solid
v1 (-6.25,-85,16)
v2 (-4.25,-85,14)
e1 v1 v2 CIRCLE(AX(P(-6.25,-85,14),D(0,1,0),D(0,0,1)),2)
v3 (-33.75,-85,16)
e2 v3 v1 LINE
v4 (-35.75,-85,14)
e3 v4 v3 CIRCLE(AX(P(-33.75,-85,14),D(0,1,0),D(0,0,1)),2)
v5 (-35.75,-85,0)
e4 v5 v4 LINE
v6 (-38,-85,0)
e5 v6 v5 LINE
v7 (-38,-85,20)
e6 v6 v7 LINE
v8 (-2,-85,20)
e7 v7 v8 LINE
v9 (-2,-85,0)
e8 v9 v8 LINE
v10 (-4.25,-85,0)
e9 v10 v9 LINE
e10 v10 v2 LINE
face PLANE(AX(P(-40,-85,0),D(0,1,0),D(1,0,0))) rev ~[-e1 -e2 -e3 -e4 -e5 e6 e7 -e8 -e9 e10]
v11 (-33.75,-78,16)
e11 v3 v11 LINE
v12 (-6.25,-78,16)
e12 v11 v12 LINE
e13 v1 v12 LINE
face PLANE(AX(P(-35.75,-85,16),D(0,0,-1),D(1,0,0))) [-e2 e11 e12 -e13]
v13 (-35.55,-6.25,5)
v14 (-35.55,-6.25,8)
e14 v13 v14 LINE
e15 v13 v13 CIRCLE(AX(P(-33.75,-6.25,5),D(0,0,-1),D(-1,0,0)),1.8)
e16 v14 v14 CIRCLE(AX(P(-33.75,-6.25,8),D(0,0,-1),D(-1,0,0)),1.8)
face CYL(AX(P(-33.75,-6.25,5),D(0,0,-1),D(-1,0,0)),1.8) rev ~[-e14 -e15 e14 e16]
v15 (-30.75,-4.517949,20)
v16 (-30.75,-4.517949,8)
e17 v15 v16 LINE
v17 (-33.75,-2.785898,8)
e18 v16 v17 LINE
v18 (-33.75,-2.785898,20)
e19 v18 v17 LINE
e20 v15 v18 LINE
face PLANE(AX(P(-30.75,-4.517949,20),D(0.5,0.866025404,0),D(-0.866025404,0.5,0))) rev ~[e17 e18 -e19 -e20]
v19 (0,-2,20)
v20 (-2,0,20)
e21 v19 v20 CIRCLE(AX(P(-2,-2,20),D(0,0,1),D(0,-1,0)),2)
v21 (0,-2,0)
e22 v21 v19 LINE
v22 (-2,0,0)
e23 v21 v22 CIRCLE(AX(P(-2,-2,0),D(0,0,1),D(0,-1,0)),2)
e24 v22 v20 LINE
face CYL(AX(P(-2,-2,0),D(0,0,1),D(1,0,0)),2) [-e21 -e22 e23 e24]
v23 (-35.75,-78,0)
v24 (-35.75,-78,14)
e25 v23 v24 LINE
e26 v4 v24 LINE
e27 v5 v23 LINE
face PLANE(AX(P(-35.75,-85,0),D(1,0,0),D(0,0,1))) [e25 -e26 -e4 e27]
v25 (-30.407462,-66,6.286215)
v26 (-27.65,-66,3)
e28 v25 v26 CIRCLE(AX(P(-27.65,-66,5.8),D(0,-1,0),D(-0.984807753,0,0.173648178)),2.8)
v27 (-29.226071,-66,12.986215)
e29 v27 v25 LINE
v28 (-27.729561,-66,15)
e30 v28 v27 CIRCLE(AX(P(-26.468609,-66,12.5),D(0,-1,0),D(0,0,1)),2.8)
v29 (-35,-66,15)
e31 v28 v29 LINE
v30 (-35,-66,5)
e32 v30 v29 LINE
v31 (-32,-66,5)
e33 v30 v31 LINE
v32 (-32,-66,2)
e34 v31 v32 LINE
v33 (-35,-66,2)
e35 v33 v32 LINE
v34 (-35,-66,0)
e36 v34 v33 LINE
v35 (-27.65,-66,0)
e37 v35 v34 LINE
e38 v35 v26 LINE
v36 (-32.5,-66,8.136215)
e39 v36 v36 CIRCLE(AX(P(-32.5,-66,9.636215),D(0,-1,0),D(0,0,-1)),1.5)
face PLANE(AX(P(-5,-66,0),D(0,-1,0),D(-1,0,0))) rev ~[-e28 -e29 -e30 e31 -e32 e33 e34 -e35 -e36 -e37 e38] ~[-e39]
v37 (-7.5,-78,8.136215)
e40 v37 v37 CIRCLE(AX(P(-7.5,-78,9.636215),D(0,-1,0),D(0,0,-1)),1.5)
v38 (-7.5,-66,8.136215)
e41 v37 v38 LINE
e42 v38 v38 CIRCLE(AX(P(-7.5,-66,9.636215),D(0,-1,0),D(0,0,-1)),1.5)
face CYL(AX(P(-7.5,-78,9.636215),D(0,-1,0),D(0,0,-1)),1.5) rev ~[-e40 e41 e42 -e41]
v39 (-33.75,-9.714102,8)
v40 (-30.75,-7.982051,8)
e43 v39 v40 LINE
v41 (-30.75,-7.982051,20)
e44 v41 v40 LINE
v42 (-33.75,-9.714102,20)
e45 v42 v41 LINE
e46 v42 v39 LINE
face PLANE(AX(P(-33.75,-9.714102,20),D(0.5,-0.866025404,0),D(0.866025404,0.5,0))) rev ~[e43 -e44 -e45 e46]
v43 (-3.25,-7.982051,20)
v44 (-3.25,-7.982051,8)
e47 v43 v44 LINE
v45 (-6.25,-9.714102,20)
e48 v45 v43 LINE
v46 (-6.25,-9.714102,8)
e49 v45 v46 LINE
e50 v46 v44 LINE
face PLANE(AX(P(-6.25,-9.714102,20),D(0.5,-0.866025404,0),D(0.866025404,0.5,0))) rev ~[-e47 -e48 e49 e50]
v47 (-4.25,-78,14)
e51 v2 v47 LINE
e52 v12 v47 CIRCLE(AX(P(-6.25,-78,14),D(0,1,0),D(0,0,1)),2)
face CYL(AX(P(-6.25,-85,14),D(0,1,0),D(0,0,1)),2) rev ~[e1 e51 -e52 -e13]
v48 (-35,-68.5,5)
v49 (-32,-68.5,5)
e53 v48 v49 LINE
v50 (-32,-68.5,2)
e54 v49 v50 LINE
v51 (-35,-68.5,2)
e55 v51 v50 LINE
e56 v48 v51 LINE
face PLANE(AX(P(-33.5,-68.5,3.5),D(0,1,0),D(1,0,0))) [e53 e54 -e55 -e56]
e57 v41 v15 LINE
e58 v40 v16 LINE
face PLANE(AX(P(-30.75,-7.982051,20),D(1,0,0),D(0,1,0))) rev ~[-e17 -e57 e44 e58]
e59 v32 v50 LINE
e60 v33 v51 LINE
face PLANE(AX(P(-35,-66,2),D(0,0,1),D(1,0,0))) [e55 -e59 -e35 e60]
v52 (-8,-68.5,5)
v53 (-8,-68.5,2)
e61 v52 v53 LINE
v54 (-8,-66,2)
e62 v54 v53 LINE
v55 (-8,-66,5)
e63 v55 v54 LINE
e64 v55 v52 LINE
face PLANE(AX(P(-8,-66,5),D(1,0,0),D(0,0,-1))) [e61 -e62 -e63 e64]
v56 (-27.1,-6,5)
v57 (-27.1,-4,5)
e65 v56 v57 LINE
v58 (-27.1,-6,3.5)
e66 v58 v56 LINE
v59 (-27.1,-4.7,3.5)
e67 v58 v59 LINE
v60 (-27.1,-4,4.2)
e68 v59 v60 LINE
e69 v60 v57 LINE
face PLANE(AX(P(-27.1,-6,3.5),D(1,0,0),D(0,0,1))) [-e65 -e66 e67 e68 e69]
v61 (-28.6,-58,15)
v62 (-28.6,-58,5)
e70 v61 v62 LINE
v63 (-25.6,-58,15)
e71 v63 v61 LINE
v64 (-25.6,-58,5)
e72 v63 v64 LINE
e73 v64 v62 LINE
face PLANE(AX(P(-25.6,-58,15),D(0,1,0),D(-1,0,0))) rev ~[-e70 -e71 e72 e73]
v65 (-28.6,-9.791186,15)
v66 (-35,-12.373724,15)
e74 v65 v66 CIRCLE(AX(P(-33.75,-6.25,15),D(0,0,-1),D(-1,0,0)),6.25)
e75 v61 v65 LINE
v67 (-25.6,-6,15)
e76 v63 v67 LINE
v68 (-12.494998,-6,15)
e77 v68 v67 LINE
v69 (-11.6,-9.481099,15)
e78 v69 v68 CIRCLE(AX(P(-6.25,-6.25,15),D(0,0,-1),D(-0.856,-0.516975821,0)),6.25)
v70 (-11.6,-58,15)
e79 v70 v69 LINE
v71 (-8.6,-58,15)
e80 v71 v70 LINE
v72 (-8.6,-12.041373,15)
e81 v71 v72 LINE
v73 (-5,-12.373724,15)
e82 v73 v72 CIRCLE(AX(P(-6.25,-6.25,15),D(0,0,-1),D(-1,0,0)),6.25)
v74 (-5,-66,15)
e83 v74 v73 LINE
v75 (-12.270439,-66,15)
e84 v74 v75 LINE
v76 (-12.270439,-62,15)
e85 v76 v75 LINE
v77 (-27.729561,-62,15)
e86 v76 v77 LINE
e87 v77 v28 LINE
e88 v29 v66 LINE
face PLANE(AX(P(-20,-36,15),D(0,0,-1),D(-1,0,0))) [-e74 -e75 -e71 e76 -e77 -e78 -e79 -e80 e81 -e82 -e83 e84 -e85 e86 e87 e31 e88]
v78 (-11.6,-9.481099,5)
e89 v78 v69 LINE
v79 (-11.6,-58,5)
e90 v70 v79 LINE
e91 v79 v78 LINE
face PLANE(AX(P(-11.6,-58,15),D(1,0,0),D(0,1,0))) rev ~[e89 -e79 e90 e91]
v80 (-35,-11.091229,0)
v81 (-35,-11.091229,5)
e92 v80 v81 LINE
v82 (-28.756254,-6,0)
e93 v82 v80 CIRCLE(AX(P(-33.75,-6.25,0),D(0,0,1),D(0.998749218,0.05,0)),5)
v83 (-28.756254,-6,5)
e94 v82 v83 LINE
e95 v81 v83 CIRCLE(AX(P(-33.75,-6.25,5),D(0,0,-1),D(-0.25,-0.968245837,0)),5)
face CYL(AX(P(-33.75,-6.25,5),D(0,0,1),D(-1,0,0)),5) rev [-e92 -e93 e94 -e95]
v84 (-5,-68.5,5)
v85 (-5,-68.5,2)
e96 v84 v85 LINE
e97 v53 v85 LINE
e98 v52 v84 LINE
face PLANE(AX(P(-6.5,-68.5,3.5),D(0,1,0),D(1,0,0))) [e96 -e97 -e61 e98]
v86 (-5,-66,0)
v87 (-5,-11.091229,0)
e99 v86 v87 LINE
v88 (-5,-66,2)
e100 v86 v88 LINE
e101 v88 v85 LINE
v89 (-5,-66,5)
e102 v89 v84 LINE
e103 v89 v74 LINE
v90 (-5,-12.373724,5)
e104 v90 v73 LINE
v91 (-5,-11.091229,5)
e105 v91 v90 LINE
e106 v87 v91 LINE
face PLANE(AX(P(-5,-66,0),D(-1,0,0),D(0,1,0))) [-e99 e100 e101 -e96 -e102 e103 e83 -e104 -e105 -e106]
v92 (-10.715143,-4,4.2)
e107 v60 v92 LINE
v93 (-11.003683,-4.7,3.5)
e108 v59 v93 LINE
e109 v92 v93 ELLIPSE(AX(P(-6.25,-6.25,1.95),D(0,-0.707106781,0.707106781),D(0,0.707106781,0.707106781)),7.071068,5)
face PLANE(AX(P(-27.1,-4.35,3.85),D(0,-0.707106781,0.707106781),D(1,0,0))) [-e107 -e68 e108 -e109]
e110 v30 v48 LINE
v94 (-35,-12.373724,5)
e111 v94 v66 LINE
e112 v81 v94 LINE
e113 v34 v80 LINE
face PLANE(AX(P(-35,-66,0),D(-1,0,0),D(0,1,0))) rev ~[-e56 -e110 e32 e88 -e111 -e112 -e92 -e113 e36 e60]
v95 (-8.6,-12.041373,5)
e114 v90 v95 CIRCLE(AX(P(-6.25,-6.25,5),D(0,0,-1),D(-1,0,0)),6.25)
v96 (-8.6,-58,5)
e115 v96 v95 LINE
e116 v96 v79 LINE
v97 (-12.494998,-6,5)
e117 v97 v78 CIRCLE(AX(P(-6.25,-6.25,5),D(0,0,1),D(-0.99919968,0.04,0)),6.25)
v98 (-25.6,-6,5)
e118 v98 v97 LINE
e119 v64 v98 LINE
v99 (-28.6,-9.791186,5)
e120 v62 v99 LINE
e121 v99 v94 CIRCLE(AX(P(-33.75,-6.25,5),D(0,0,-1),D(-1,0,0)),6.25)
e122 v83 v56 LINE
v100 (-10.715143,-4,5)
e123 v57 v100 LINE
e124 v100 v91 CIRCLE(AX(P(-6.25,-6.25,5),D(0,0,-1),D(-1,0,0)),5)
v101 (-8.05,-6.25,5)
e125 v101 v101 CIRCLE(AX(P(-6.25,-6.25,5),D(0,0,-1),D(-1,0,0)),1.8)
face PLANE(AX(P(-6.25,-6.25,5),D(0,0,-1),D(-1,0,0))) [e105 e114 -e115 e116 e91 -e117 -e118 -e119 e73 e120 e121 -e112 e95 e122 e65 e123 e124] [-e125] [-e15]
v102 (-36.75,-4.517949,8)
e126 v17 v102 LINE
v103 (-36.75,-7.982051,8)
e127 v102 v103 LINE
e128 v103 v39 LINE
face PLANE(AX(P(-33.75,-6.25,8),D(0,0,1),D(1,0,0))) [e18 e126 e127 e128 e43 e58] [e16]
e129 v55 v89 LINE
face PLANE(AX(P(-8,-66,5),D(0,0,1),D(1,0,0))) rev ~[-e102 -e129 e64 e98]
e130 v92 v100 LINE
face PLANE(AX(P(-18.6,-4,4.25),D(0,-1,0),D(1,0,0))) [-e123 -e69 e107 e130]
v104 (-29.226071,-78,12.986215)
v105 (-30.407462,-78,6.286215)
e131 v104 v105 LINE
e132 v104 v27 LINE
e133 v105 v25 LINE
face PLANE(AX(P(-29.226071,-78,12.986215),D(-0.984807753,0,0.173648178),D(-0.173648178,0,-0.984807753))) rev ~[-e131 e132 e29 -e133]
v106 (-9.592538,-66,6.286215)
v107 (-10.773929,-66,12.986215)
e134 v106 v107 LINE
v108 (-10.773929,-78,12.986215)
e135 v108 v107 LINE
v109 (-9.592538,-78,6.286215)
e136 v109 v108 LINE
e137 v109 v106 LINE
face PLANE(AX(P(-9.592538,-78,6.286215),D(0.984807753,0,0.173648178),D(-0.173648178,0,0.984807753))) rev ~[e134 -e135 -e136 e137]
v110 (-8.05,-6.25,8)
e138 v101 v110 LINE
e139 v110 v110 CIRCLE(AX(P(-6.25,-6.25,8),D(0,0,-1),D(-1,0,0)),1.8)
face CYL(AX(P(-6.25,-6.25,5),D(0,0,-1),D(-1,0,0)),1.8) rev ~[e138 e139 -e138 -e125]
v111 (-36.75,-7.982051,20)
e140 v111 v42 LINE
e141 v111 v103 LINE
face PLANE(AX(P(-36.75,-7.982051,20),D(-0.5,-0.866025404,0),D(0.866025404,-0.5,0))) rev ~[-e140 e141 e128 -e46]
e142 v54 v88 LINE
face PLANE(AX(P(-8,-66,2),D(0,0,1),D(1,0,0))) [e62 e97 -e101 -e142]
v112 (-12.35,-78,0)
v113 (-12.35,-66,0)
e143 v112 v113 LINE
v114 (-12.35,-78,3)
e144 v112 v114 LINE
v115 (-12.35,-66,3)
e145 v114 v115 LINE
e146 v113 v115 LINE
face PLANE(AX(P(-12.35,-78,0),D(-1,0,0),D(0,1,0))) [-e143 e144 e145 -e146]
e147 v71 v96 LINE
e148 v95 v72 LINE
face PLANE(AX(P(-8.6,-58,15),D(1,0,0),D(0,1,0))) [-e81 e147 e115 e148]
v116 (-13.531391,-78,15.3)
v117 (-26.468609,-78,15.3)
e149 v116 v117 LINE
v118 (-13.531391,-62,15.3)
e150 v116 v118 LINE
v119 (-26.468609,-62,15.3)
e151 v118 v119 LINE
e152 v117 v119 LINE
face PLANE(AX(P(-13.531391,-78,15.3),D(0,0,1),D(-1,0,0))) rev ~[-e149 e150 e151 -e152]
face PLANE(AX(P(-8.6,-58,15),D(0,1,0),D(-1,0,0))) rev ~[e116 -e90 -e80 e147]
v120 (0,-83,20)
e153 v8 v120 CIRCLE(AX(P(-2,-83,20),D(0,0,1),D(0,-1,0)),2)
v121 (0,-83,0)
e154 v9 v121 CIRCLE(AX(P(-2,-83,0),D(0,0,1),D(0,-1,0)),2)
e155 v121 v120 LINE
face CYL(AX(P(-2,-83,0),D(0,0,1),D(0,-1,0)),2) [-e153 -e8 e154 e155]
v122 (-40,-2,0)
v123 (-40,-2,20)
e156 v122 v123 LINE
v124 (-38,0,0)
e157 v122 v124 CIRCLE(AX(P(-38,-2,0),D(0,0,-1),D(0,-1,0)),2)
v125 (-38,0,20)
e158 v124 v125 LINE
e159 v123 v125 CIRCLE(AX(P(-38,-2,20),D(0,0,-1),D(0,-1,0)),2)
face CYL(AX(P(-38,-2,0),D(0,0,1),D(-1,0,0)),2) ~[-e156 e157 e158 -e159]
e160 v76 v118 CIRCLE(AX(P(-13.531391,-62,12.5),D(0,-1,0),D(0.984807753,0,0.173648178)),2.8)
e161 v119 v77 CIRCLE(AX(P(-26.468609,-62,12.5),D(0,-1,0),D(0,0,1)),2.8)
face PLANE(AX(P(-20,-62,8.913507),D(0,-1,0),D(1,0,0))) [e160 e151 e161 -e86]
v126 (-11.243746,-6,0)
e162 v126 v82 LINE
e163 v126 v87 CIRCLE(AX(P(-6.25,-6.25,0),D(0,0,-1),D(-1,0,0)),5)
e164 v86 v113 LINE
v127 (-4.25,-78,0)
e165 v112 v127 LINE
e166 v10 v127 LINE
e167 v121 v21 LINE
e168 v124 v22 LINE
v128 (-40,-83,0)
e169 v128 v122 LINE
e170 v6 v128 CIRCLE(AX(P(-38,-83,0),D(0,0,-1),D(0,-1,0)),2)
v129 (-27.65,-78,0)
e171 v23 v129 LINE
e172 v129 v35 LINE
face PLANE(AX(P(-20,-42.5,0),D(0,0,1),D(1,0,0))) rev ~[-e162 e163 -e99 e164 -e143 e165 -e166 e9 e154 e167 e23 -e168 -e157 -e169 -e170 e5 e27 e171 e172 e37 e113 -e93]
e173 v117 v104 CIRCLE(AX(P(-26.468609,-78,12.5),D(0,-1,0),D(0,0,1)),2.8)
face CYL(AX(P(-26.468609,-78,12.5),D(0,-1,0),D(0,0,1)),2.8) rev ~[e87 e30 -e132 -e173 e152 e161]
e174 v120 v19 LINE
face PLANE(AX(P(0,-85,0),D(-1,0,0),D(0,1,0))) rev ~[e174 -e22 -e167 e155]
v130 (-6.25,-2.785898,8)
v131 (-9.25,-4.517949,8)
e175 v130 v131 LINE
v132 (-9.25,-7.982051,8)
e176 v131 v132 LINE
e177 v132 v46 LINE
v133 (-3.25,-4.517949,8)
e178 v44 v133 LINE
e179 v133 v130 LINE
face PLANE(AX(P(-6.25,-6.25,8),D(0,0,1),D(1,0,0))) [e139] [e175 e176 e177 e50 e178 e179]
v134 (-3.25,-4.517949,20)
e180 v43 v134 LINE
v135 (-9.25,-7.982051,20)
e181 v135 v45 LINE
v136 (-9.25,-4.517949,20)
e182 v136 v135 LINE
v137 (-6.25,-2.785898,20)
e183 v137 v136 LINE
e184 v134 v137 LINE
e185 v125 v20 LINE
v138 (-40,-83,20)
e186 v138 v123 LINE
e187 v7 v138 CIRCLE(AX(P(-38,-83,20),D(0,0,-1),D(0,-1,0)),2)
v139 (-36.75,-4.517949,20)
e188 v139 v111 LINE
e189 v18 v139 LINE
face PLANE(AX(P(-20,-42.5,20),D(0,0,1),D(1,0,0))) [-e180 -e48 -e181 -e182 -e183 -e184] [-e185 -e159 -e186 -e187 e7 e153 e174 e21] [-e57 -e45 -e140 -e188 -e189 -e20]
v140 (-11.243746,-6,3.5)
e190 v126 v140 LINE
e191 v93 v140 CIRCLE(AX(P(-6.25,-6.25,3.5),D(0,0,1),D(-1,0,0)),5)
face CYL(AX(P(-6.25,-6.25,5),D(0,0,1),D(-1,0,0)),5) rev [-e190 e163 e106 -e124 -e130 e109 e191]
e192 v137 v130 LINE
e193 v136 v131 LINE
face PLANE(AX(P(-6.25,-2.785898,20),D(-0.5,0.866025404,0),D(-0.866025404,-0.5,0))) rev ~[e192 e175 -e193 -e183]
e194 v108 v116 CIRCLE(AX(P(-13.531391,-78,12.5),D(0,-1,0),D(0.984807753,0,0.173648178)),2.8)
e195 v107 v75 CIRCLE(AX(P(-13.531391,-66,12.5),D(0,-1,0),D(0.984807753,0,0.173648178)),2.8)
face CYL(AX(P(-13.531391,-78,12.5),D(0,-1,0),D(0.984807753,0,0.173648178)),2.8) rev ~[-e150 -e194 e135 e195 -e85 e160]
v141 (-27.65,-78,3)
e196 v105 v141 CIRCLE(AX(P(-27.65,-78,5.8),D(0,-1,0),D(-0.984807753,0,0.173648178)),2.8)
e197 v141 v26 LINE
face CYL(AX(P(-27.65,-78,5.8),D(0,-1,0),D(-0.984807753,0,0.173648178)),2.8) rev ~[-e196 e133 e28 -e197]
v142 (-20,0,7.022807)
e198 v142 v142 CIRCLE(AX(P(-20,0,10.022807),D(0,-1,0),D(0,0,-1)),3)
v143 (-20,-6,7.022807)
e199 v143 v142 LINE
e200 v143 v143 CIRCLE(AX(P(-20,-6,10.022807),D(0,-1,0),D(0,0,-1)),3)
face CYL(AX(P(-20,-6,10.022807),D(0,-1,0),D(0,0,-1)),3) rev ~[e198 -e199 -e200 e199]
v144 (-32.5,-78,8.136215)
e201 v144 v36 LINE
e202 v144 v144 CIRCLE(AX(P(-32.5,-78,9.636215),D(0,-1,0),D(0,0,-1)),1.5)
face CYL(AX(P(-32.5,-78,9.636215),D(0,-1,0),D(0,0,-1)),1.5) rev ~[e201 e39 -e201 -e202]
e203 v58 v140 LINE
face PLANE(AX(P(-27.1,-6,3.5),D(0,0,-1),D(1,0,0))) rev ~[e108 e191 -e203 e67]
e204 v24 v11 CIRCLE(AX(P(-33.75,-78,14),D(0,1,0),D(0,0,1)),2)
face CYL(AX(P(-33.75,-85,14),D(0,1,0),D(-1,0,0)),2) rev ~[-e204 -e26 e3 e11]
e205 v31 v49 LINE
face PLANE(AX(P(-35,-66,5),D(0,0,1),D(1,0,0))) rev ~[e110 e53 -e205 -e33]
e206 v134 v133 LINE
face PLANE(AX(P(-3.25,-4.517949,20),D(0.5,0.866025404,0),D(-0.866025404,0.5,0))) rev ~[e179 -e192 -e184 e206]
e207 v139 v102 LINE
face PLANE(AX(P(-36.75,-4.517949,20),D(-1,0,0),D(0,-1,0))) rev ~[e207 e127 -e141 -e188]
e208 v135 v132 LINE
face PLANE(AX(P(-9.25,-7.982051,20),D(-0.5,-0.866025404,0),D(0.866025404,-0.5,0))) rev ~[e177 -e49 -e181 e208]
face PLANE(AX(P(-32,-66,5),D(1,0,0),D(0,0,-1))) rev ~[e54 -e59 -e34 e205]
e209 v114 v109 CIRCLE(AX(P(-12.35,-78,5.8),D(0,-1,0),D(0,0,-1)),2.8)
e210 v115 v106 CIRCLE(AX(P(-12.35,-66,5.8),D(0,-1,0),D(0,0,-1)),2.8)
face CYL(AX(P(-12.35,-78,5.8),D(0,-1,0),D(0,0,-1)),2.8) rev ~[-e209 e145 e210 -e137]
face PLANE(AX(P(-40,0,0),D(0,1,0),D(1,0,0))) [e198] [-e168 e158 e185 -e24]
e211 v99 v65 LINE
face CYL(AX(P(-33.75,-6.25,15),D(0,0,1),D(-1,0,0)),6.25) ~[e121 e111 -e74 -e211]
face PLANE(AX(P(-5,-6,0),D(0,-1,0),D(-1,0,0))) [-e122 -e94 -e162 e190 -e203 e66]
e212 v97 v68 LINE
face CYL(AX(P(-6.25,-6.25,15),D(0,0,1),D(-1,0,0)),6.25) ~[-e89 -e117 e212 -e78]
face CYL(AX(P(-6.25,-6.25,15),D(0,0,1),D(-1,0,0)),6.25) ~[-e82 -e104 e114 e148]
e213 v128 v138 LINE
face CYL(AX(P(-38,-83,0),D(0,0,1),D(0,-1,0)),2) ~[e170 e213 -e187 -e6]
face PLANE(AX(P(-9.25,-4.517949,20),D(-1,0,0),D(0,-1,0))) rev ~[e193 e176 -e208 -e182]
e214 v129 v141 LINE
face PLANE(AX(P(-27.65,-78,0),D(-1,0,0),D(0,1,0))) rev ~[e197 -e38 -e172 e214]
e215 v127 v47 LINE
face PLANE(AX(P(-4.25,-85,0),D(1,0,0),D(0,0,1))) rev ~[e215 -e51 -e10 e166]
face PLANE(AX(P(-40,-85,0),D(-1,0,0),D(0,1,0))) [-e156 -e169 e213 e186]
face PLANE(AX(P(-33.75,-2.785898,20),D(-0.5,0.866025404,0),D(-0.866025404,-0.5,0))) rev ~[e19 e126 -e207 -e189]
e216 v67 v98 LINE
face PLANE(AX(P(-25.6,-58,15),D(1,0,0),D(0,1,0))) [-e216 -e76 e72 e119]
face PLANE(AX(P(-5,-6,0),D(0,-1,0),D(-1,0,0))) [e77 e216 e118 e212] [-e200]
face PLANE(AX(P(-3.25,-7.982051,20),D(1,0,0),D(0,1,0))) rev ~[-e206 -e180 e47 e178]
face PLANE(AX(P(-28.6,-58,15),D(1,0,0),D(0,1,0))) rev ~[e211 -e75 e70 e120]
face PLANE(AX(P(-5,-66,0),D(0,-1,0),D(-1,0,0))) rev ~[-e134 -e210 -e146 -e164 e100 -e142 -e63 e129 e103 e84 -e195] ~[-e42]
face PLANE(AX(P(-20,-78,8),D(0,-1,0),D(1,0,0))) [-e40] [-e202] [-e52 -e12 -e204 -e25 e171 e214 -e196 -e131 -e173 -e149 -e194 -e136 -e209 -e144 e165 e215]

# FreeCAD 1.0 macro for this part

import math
import FreeCAD as App
import Part
import Sketcher
Q = App.Units.Quantity


def edges_at(feature, points):
    """Names of the edges that pass closest to the given points."""
    edges = feature.Shape.Edges
    near = lambda p: min(range(len(edges)), key=lambda i: edges[i].distToShape(Part.Vertex(*p))[0])
    return sorted({f"Edge{near(p) + 1}" for p in points})

doc = App.newDocument("Part")
body = doc.addObject("PartDesign::Body", "Body")

# Sketch on XY plane
sketch1 = body.newObject("Sketcher::SketchObject", "Sketch")
sketch1.AttachmentSupport = (doc.getObject("XY_Plane"), [""])
sketch1.MapMode = "FlatFace"
sketch1.addGeometry(Part.LineSegment(App.Vector(-40, 0, 0), App.Vector(-40, -85, 0)), False)
sketch1.addGeometry(Part.LineSegment(App.Vector(-40, -85, 0), App.Vector(0, -85, 0)), False)
sketch1.addGeometry(Part.LineSegment(App.Vector(0, -85, 0), App.Vector(0, 0, 0)), False)
sketch1.addGeometry(Part.LineSegment(App.Vector(0, 0, 0), App.Vector(-40, 0, 0)), False)
sketch1.addConstraint(Sketcher.Constraint("Coincident", 0, 2, 1, 1))
sketch1.addConstraint(Sketcher.Constraint("Coincident", 1, 2, 2, 1))
sketch1.addConstraint(Sketcher.Constraint("Coincident", 2, 2, 3, 1))
sketch1.addConstraint(Sketcher.Constraint("Coincident", 3, 2, 0, 1))
sketch1.addConstraint(Sketcher.Constraint("Vertical", 0))
sketch1.addConstraint(Sketcher.Constraint("Horizontal", 1))
sketch1.addConstraint(Sketcher.Constraint("Vertical", 2))
sketch1.addConstraint(Sketcher.Constraint("Horizontal", 3))
sketch1.addConstraint(Sketcher.Constraint("Coincident", 2, 2, -1, 1))
sketch1.addConstraint(Sketcher.Constraint("DistanceX", 1, 1, 1, 2, Q("40 mm")))
sketch1.addConstraint(Sketcher.Constraint("DistanceY", 0, 2, 0, 1, Q("85 mm")))
pad1 = body.newObject("PartDesign::Pad", "Pad")
pad1.Profile = sketch1
pad1.Length = 20

# Sketch on XY plane
sketch2 = body.newObject("Sketcher::SketchObject", "Sketch001")
sketch2.AttachmentSupport = (doc.getObject("XY_Plane"), [""])
sketch2.MapMode = "FlatFace"
sketch2.addGeometry(Part.LineSegment(App.Vector(-5, -6, 0), App.Vector(-5, -66, 0)), False)
sketch2.addGeometry(Part.LineSegment(App.Vector(-5, -66, 0), App.Vector(-35, -66, 0)), False)
sketch2.addGeometry(Part.LineSegment(App.Vector(-35, -66, 0), App.Vector(-35, -6, 0)), False)
sketch2.addGeometry(Part.LineSegment(App.Vector(-35, -6, 0), App.Vector(-5, -6, 0)), False)
sketch2.addConstraint(Sketcher.Constraint("Coincident", 0, 2, 1, 1))
sketch2.addConstraint(Sketcher.Constraint("Coincident", 1, 2, 2, 1))
sketch2.addConstraint(Sketcher.Constraint("Coincident", 2, 2, 3, 1))
sketch2.addConstraint(Sketcher.Constraint("Coincident", 3, 2, 0, 1))
sketch2.addConstraint(Sketcher.Constraint("Vertical", 0))
sketch2.addConstraint(Sketcher.Constraint("Horizontal", 1))
sketch2.addConstraint(Sketcher.Constraint("Vertical", 2))
sketch2.addConstraint(Sketcher.Constraint("Horizontal", 3))
sketch2.addConstraint(Sketcher.Constraint("DistanceX", 1, 2, 1, 1, Q("30 mm")))
sketch2.addConstraint(Sketcher.Constraint("DistanceY", 0, 2, 0, 1, Q("60 mm")))
sketch2.addConstraint(Sketcher.Constraint("DistanceX", 0, 2, -1, 1, Q("5 mm")))
sketch2.addConstraint(Sketcher.Constraint("DistanceY", 0, 2, -1, 1, Q("66 mm")))
pocket1 = body.newObject("PartDesign::Pocket", "Pocket")
pocket1.Profile = sketch2
pocket1.Length = 15
pocket1.Reversed = True

# Sketch on XZ plane
sketch3 = body.newObject("Sketcher::SketchObject", "Sketch002")
sketch3.AttachmentSupport = (doc.getObject("XZ_Plane"), [""])
sketch3.MapMode = "FlatFace"
sketch3.AttachmentOffset = App.Placement(App.Vector(0, 0, 85), App.Rotation())
sketch3.addGeometry(Part.LineSegment(App.Vector(-36, 16, 0), App.Vector(-36, 0, 0)), False)
sketch3.addGeometry(Part.LineSegment(App.Vector(-36, 0, 0), App.Vector(-4, 0, 0)), False)
sketch3.addGeometry(Part.LineSegment(App.Vector(-4, 0, 0), App.Vector(-4, 16, 0)), False)
sketch3.addGeometry(Part.LineSegment(App.Vector(-4, 16, 0), App.Vector(-36, 16, 0)), False)
sketch3.addConstraint(Sketcher.Constraint("Coincident", 0, 2, 1, 1))
sketch3.addConstraint(Sketcher.Constraint("Coincident", 1, 2, 2, 1))
sketch3.addConstraint(Sketcher.Constraint("Coincident", 2, 2, 3, 1))
sketch3.addConstraint(Sketcher.Constraint("Coincident", 3, 2, 0, 1))
sketch3.addConstraint(Sketcher.Constraint("Vertical", 0))
sketch3.addConstraint(Sketcher.Constraint("Horizontal", 1))
sketch3.addConstraint(Sketcher.Constraint("Vertical", 2))
sketch3.addConstraint(Sketcher.Constraint("Horizontal", 3))
sketch3.addConstraint(Sketcher.Constraint("PointOnObject", 0, 2, -1))
sketch3.addConstraint(Sketcher.Constraint("DistanceY", 0, 2, 0, 1, Q("16 mm")))
sketch3.addConstraint(Sketcher.Constraint("DistanceX", 1, 1, 1, 2, Q("31.5 mm")))
sketch3.addConstraint(Sketcher.Constraint("DistanceX", 0, 2, -1, 1, Q("35.75 mm")))
pocket2 = body.newObject("PartDesign::Pocket", "Pocket001")
pocket2.Profile = sketch3
pocket2.Length = 7

# Sketch on XZ plane
sketch4 = body.newObject("Sketcher::SketchObject", "Sketch003")
sketch4.AttachmentSupport = (doc.getObject("XZ_Plane"), [""])
sketch4.MapMode = "FlatFace"
sketch4.AttachmentOffset = App.Placement(App.Vector(0, 0, 78), App.Rotation())
sketch4.addGeometry(Part.Circle(App.Vector(-7.5, 9.6, 0), App.Vector(0, 0, 1), 1.5), False)
sketch4.addGeometry(Part.Circle(App.Vector(-32.5, 9.6, 0), App.Vector(0, 0, 1), 1.5), False)
sketch4.addGeometry(Part.LineSegment(App.Vector(-13.5, 15.3, 0), App.Vector(-26.5, 15.3, 0)), False)
sketch4.addGeometry(Part.ArcOfCircle(Part.Circle(App.Vector(-26.5, 12.5, 0), App.Vector(0, 0, 1), 2.8), math.radians(90), math.radians(170)), False)
sketch4.addGeometry(Part.LineSegment(App.Vector(-29.2, 13, 0), App.Vector(-30.4, 6.3, 0)), False)
sketch4.addGeometry(Part.ArcOfCircle(Part.Circle(App.Vector(-27.7, 5.8, 0), App.Vector(0, 0, 1), 2.8), math.radians(170), math.radians(270)), False)
sketch4.addGeometry(Part.LineSegment(App.Vector(-27.6, 3, 0), App.Vector(-12.3, 3, 0)), False)
sketch4.addGeometry(Part.ArcOfCircle(Part.Circle(App.Vector(-12.3, 5.8, 0), App.Vector(0, 0, 1), 2.8), math.radians(-90), math.radians(10)), False)
sketch4.addGeometry(Part.LineSegment(App.Vector(-9.6, 6.3, 0), App.Vector(-10.8, 13, 0)), False)
sketch4.addGeometry(Part.ArcOfCircle(Part.Circle(App.Vector(-13.5, 12.5, 0), App.Vector(0, 0, 1), 2.8), math.radians(10), math.radians(90)), False)
sketch4.addConstraint(Sketcher.Constraint("Tangent", 2, 2, 3, 1))
sketch4.addConstraint(Sketcher.Constraint("Tangent", 3, 2, 4, 1))
sketch4.addConstraint(Sketcher.Constraint("Tangent", 4, 2, 5, 1))
sketch4.addConstraint(Sketcher.Constraint("Tangent", 5, 2, 6, 1))
sketch4.addConstraint(Sketcher.Constraint("Tangent", 6, 2, 7, 1))
sketch4.addConstraint(Sketcher.Constraint("Tangent", 7, 2, 8, 1))
sketch4.addConstraint(Sketcher.Constraint("Tangent", 8, 2, 9, 1))
sketch4.addConstraint(Sketcher.Constraint("Tangent", 9, 2, 2, 1))
sketch4.addConstraint(Sketcher.Constraint("Horizontal", 2))
sketch4.addConstraint(Sketcher.Constraint("Horizontal", 6))
sketch4.addConstraint(Sketcher.Constraint("Equal", 0, 1))
sketch4.addConstraint(Sketcher.Constraint("Equal", 3, 5))
sketch4.addConstraint(Sketcher.Constraint("Equal", 5, 7))
sketch4.addConstraint(Sketcher.Constraint("Equal", 7, 9))
sketch4.addConstraint(Sketcher.Constraint("Horizontal", 0, 3, 1, 3))
sketch4.addConstraint(Sketcher.Constraint("Horizontal", 4, 2, 7, 2))
sketch4.addConstraint(Sketcher.Constraint("Diameter", 0, Q("3 mm")))
sketch4.addConstraint(Sketcher.Constraint("Radius", 3, Q("2.8 mm")))
sketch4.addConstraint(Sketcher.Constraint("Angle", 4, Q("-100 deg")))
sketch4.addConstraint(Sketcher.Constraint("DistanceX", 6, 1, 6, 2, Q("15.3 mm")))
sketch4.addConstraint(Sketcher.Constraint("DistanceY", -1, 1, 5, 2, Q("3 mm")))
sketch4.addConstraint(Sketcher.Constraint("DistanceX", 1, 3, 0, 3, Q("25 mm")))
sketch4.addConstraint(Sketcher.Constraint("DistanceX", 0, 3, -1, 1, Q("7.5 mm")))
sketch4.addConstraint(Sketcher.Constraint("DistanceY", -1, 1, 3, 3, Q("12.5 mm")))
sketch4.addConstraint(Sketcher.Constraint("DistanceX", 5, 3, -1, 1, Q("27.65 mm")))
sketch4.addConstraint(Sketcher.Constraint("DistanceY", 1, 3, 3, 2, Q("3.35 mm")))
pocket3 = body.newObject("PartDesign::Pocket", "Pocket002")
pocket3.Profile = sketch4
pocket3.Length = 16
doc.recompute()

fillet = body.newObject("PartDesign::Fillet", "Fillet")
fillet.Base = (pocket3, edges_at(pocket3, [(-4.25, -81.5, 16), (-35.75, -81.5, 16)]))
fillet.Radius = 2
doc.recompute()

fillet2 = body.newObject("PartDesign::Fillet", "Fillet001")
fillet2.Base = (fillet, edges_at(fillet, [
    (0, -85, 10),
    (-40, -85, 10),
    (-40, 0, 10),
    (0, 0, 10),
]))
fillet2.Radius = 2

# Sketch on XY plane
sketch5 = body.newObject("Sketcher::SketchObject", "Sketch004")
sketch5.AttachmentSupport = (doc.getObject("XY_Plane"), [""])
sketch5.MapMode = "FlatFace"
sketch5.addGeometry(Part.LineSegment(App.Vector(-12, -66, 0), App.Vector(-12, -78, 0)), False)
sketch5.addGeometry(Part.LineSegment(App.Vector(-12, -78, 0), App.Vector(-28, -78, 0)), False)
sketch5.addGeometry(Part.LineSegment(App.Vector(-28, -78, 0), App.Vector(-28, -66, 0)), False)
sketch5.addGeometry(Part.LineSegment(App.Vector(-28, -66, 0), App.Vector(-12, -66, 0)), False)
sketch5.addConstraint(Sketcher.Constraint("Coincident", 0, 2, 1, 1))
sketch5.addConstraint(Sketcher.Constraint("Coincident", 1, 2, 2, 1))
sketch5.addConstraint(Sketcher.Constraint("Coincident", 2, 2, 3, 1))
sketch5.addConstraint(Sketcher.Constraint("Coincident", 3, 2, 0, 1))
sketch5.addConstraint(Sketcher.Constraint("Vertical", 0))
sketch5.addConstraint(Sketcher.Constraint("Horizontal", 1))
sketch5.addConstraint(Sketcher.Constraint("Vertical", 2))
sketch5.addConstraint(Sketcher.Constraint("Horizontal", 3))
sketch5.addConstraint(Sketcher.Constraint("DistanceY", 0, 2, 0, 1, Q("12 mm")))
sketch5.addConstraint(Sketcher.Constraint("DistanceX", 1, 2, 1, 1, Q("15.3 mm")))
sketch5.addConstraint(Sketcher.Constraint("DistanceY", 0, 2, -1, 1, Q("78 mm")))
sketch5.addConstraint(Sketcher.Constraint("DistanceX", 0, 2, -1, 1, Q("12.35 mm")))
pocket4 = body.newObject("PartDesign::Pocket", "Pocket003")
pocket4.Profile = sketch5
pocket4.Length = 4
pocket4.Reversed = True

# Sketch on XY plane
sketch6 = body.newObject("Sketcher::SketchObject", "Sketch005")
sketch6.AttachmentSupport = (doc.getObject("XY_Plane"), [""])
sketch6.MapMode = "FlatFace"
sketch6.AttachmentOffset = App.Placement(App.Vector(0, 0, 15), App.Rotation())
sketch6.addGeometry(Part.LineSegment(App.Vector(-8.6, -6, 0), App.Vector(-8.6, -58, 0)), False)
sketch6.addGeometry(Part.LineSegment(App.Vector(-8.6, -58, 0), App.Vector(-11.6, -58, 0)), False)
sketch6.addGeometry(Part.LineSegment(App.Vector(-11.6, -58, 0), App.Vector(-11.6, -6, 0)), False)
sketch6.addGeometry(Part.LineSegment(App.Vector(-11.6, -6, 0), App.Vector(-8.6, -6, 0)), False)
sketch6.addGeometry(Part.LineSegment(App.Vector(-25.6, -6, 0), App.Vector(-25.6, -58, 0)), False)
sketch6.addGeometry(Part.LineSegment(App.Vector(-25.6, -58, 0), App.Vector(-28.6, -58, 0)), False)
sketch6.addGeometry(Part.LineSegment(App.Vector(-28.6, -58, 0), App.Vector(-28.6, -6, 0)), False)
sketch6.addGeometry(Part.LineSegment(App.Vector(-28.6, -6, 0), App.Vector(-25.6, -6, 0)), False)
sketch6.addConstraint(Sketcher.Constraint("Coincident", 0, 2, 1, 1))
sketch6.addConstraint(Sketcher.Constraint("Coincident", 1, 2, 2, 1))
sketch6.addConstraint(Sketcher.Constraint("Coincident", 2, 2, 3, 1))
sketch6.addConstraint(Sketcher.Constraint("Coincident", 3, 2, 0, 1))
sketch6.addConstraint(Sketcher.Constraint("Coincident", 4, 2, 5, 1))
sketch6.addConstraint(Sketcher.Constraint("Coincident", 5, 2, 6, 1))
sketch6.addConstraint(Sketcher.Constraint("Coincident", 6, 2, 7, 1))
sketch6.addConstraint(Sketcher.Constraint("Coincident", 7, 2, 4, 1))
sketch6.addConstraint(Sketcher.Constraint("Vertical", 0))
sketch6.addConstraint(Sketcher.Constraint("Horizontal", 1))
sketch6.addConstraint(Sketcher.Constraint("Vertical", 2))
sketch6.addConstraint(Sketcher.Constraint("Horizontal", 3))
sketch6.addConstraint(Sketcher.Constraint("Vertical", 4))
sketch6.addConstraint(Sketcher.Constraint("Horizontal", 5))
sketch6.addConstraint(Sketcher.Constraint("Vertical", 6))
sketch6.addConstraint(Sketcher.Constraint("Horizontal", 7))
sketch6.addConstraint(Sketcher.Constraint("Horizontal", 1, 2, 4, 2))
sketch6.addConstraint(Sketcher.Constraint("Horizontal", 3, 2, 6, 2))
sketch6.addConstraint(Sketcher.Constraint("Equal", 3, 5))
sketch6.addConstraint(Sketcher.Constraint("DistanceX", 1, 2, 1, 1, Q("3 mm")))
sketch6.addConstraint(Sketcher.Constraint("DistanceY", 0, 2, 0, 1, Q("52 mm")))
sketch6.addConstraint(Sketcher.Constraint("DistanceY", 0, 2, -1, 1, Q("58 mm")))
sketch6.addConstraint(Sketcher.Constraint("DistanceX", 4, 2, 1, 2, Q("14 mm")))
sketch6.addConstraint(Sketcher.Constraint("DistanceX", 0, 2, -1, 1, Q("8.6 mm")))
pad2 = body.newObject("PartDesign::Pad", "Pad001")
pad2.Profile = sketch6
pad2.Length = 10
pad2.Reversed = True

# Sketch on XZ plane
sketch7 = body.newObject("Sketcher::SketchObject", "Sketch006")
sketch7.AttachmentSupport = (doc.getObject("XZ_Plane"), [""])
sketch7.MapMode = "FlatFace"
sketch7.AttachmentOffset = App.Placement(App.Vector(0, 0, 6), App.Rotation())
sketch7.addGeometry(Part.LineSegment(App.Vector(-27.1, 5, 0), App.Vector(-27.1, 3.5, 0)), False)
sketch7.addGeometry(Part.LineSegment(App.Vector(-27.1, 3.5, 0), App.Vector(-10.1, 3.5, 0)), False)
sketch7.addGeometry(Part.LineSegment(App.Vector(-10.1, 3.5, 0), App.Vector(-10.1, 5, 0)), False)
sketch7.addGeometry(Part.LineSegment(App.Vector(-10.1, 5, 0), App.Vector(-27.1, 5, 0)), False)
sketch7.addConstraint(Sketcher.Constraint("Coincident", 0, 2, 1, 1))
sketch7.addConstraint(Sketcher.Constraint("Coincident", 1, 2, 2, 1))
sketch7.addConstraint(Sketcher.Constraint("Coincident", 2, 2, 3, 1))
sketch7.addConstraint(Sketcher.Constraint("Coincident", 3, 2, 0, 1))
sketch7.addConstraint(Sketcher.Constraint("Vertical", 0))
sketch7.addConstraint(Sketcher.Constraint("Horizontal", 1))
sketch7.addConstraint(Sketcher.Constraint("Vertical", 2))
sketch7.addConstraint(Sketcher.Constraint("Horizontal", 3))
sketch7.addConstraint(Sketcher.Constraint("DistanceX", 1, 1, 1, 2, Q("17 mm")))
sketch7.addConstraint(Sketcher.Constraint("DistanceY", 0, 2, 0, 1, Q("1.5 mm")))
sketch7.addConstraint(Sketcher.Constraint("DistanceY", -1, 1, 2, 2, Q("5 mm")))
sketch7.addConstraint(Sketcher.Constraint("DistanceX", 0, 2, -1, 1, Q("27.1 mm")))
pocket5 = body.newObject("PartDesign::Pocket", "Pocket004")
pocket5.Profile = sketch7
pocket5.Length = 2
doc.recompute()

chamfer = body.newObject("PartDesign::Chamfer", "Chamfer")
chamfer.Base = (pocket5, edges_at(pocket5, [(-18.6, -4, 3.5)]))
chamfer.Size = 0.7

# Sketch on XZ plane
sketch8 = body.newObject("Sketcher::SketchObject", "Sketch007")
sketch8.AttachmentSupport = (doc.getObject("XZ_Plane"), [""])
sketch8.MapMode = "FlatFace"
sketch8.AttachmentOffset = App.Placement(App.Vector(0, 0, 6), App.Rotation())
sketch8.addGeometry(Part.Circle(App.Vector(-20, 10, 0), App.Vector(0, 0, 1), 3), False)
sketch8.addConstraint(Sketcher.Constraint("Diameter", 0, Q("6 mm")))
sketch8.addConstraint(Sketcher.Constraint("DistanceX", 0, 3, -1, 1, Q("20 mm")))
sketch8.addConstraint(Sketcher.Constraint("DistanceY", -1, 1, 0, 3, Q("10.022807 mm")))
pocket6 = body.newObject("PartDesign::Pocket", "Pocket005")
pocket6.Profile = sketch8
pocket6.Length = 15

# Sketch on XZ plane
sketch9 = body.newObject("Sketcher::SketchObject", "Sketch008")
sketch9.AttachmentSupport = (doc.getObject("XZ_Plane"), [""])
sketch9.MapMode = "FlatFace"
sketch9.AttachmentOffset = App.Placement(App.Vector(0, 0, 66), App.Rotation())
sketch9.addGeometry(Part.LineSegment(App.Vector(-35, 2, 0), App.Vector(-35, 5, 0)), False)
sketch9.addGeometry(Part.LineSegment(App.Vector(-35, 5, 0), App.Vector(-32, 5, 0)), False)
sketch9.addGeometry(Part.LineSegment(App.Vector(-32, 5, 0), App.Vector(-32, 2, 0)), False)
sketch9.addGeometry(Part.LineSegment(App.Vector(-32, 2, 0), App.Vector(-35, 2, 0)), False)
sketch9.addGeometry(Part.LineSegment(App.Vector(-8, 2, 0), App.Vector(-8, 5, 0)), False)
sketch9.addGeometry(Part.LineSegment(App.Vector(-8, 5, 0), App.Vector(-5, 5, 0)), False)
sketch9.addGeometry(Part.LineSegment(App.Vector(-5, 5, 0), App.Vector(-5, 2, 0)), False)
sketch9.addGeometry(Part.LineSegment(App.Vector(-5, 2, 0), App.Vector(-8, 2, 0)), False)
sketch9.addConstraint(Sketcher.Constraint("Coincident", 0, 2, 1, 1))
sketch9.addConstraint(Sketcher.Constraint("Coincident", 1, 2, 2, 1))
sketch9.addConstraint(Sketcher.Constraint("Coincident", 2, 2, 3, 1))
sketch9.addConstraint(Sketcher.Constraint("Coincident", 3, 2, 0, 1))
sketch9.addConstraint(Sketcher.Constraint("Coincident", 4, 2, 5, 1))
sketch9.addConstraint(Sketcher.Constraint("Coincident", 5, 2, 6, 1))
sketch9.addConstraint(Sketcher.Constraint("Coincident", 6, 2, 7, 1))
sketch9.addConstraint(Sketcher.Constraint("Coincident", 7, 2, 4, 1))
sketch9.addConstraint(Sketcher.Constraint("Vertical", 0))
sketch9.addConstraint(Sketcher.Constraint("Horizontal", 1))
sketch9.addConstraint(Sketcher.Constraint("Vertical", 2))
sketch9.addConstraint(Sketcher.Constraint("Horizontal", 3))
sketch9.addConstraint(Sketcher.Constraint("Vertical", 4))
sketch9.addConstraint(Sketcher.Constraint("Horizontal", 5))
sketch9.addConstraint(Sketcher.Constraint("Vertical", 6))
sketch9.addConstraint(Sketcher.Constraint("Horizontal", 7))
sketch9.addConstraint(Sketcher.Constraint("Horizontal", 1, 2, 4, 2))
sketch9.addConstraint(Sketcher.Constraint("Horizontal", 3, 2, 6, 2))
sketch9.addConstraint(Sketcher.Constraint("Equal", 3, 5))
sketch9.addConstraint(Sketcher.Constraint("Equal", 7, 0))
sketch9.addConstraint(Sketcher.Constraint("DistanceX", 1, 1, 1, 2, Q("3 mm")))
sketch9.addConstraint(Sketcher.Constraint("DistanceX", 0, 2, -1, 1, Q("35 mm")))
sketch9.addConstraint(Sketcher.Constraint("DistanceY", -1, 1, 0, 2, Q("5 mm")))
sketch9.addConstraint(Sketcher.Constraint("DistanceX", 4, 2, -1, 1, Q("8 mm")))
pocket7 = body.newObject("PartDesign::Pocket", "Pocket006")
pocket7.Profile = sketch9
pocket7.Length = 2.5
pocket7.Reversed = True

# Sketch on XY plane
sketch10 = body.newObject("Sketcher::SketchObject", "Sketch009")
sketch10.AttachmentSupport = (doc.getObject("XY_Plane"), [""])
sketch10.MapMode = "FlatFace"
sketch10.AttachmentOffset = App.Placement(App.Vector(0, 0, 15), App.Rotation())
sketch10.addGeometry(Part.Circle(App.Vector(-6, -6, 0), App.Vector(0, 0, 1), 6), False)
sketch10.addGeometry(Part.Circle(App.Vector(-34, -6, 0), App.Vector(0, 0, 1), 6), False)
sketch10.addConstraint(Sketcher.Constraint("Equal", 0, 1))
sketch10.addConstraint(Sketcher.Constraint("Horizontal", 0, 3, 1, 3))
sketch10.addConstraint(Sketcher.Constraint("Diameter", 0, Q("12.5 mm")))
sketch10.addConstraint(Sketcher.Constraint("DistanceX", 1, 3, 0, 3, Q("27.5 mm")))
sketch10.addConstraint(Sketcher.Constraint("DistanceX", 0, 3, -1, 1, Q("6.25 mm")))
sketch10.addConstraint(Sketcher.Constraint("DistanceY", 0, 3, -1, 1, Q("6.25 mm")))
pad3 = body.newObject("PartDesign::Pad", "Pad002")
pad3.Profile = sketch10
pad3.Length = 10
pad3.Reversed = True

# Sketch on XY plane
sketch11 = body.newObject("Sketcher::SketchObject", "Sketch010")
sketch11.AttachmentSupport = (doc.getObject("XY_Plane"), [""])
sketch11.MapMode = "FlatFace"
sketch11.AttachmentOffset = App.Placement(App.Vector(0, 0, 5), App.Rotation())
sketch11.addGeometry(Part.Circle(App.Vector(-6, -6, 0), App.Vector(0, 0, 1), 5), False)
sketch11.addGeometry(Part.Circle(App.Vector(-34, -6, 0), App.Vector(0, 0, 1), 5), False)
sketch11.addConstraint(Sketcher.Constraint("Equal", 0, 1))
sketch11.addConstraint(Sketcher.Constraint("Horizontal", 0, 3, 1, 3))
sketch11.addConstraint(Sketcher.Constraint("Diameter", 0, Q("10 mm")))
sketch11.addConstraint(Sketcher.Constraint("DistanceX", 1, 3, 0, 3, Q("27.5 mm")))
sketch11.addConstraint(Sketcher.Constraint("DistanceX", 0, 3, -1, 1, Q("6.25 mm")))
sketch11.addConstraint(Sketcher.Constraint("DistanceY", 0, 3, -1, 1, Q("6.25 mm")))
pocket8 = body.newObject("PartDesign::Pocket", "Pocket007")
pocket8.Profile = sketch11
pocket8.Length = 5

# Sketch on XY plane
sketch12 = body.newObject("Sketcher::SketchObject", "Sketch011")
sketch12.AttachmentSupport = (doc.getObject("XY_Plane"), [""])
sketch12.MapMode = "FlatFace"
sketch12.AttachmentOffset = App.Placement(App.Vector(0, 0, 5), App.Rotation())
sketch12.addGeometry(Part.Circle(App.Vector(-6.2, -6.2, 0), App.Vector(0, 0, 1), 1.8), False)
sketch12.addGeometry(Part.Circle(App.Vector(-33.8, -6.2, 0), App.Vector(0, 0, 1), 1.8), False)
sketch12.addConstraint(Sketcher.Constraint("Equal", 0, 1))
sketch12.addConstraint(Sketcher.Constraint("Horizontal", 0, 3, 1, 3))
sketch12.addConstraint(Sketcher.Constraint("Diameter", 0, Q("3.6 mm")))
sketch12.addConstraint(Sketcher.Constraint("DistanceX", 1, 3, 0, 3, Q("27.5 mm")))
sketch12.addConstraint(Sketcher.Constraint("DistanceX", 0, 3, -1, 1, Q("6.25 mm")))
sketch12.addConstraint(Sketcher.Constraint("DistanceY", 0, 3, -1, 1, Q("6.25 mm")))
pocket9 = body.newObject("PartDesign::Pocket", "Pocket008")
pocket9.Profile = sketch12
pocket9.Type = "ThroughAll"
pocket9.Reversed = True

# Sketch on XY plane
sketch13 = body.newObject("Sketcher::SketchObject", "Sketch012")
sketch13.AttachmentSupport = (doc.getObject("XY_Plane"), [""])
sketch13.MapMode = "FlatFace"
sketch13.AttachmentOffset = App.Placement(App.Vector(0, 0, 20), App.Rotation())
sketch13.addGeometry(Part.LineSegment(App.Vector(-6.2, -9.7, 0), App.Vector(-3.2, -8, 0)), False)
sketch13.addGeometry(Part.LineSegment(App.Vector(-3.2, -8, 0), App.Vector(-3.2, -4.5, 0)), False)
sketch13.addGeometry(Part.LineSegment(App.Vector(-3.2, -4.5, 0), App.Vector(-6.2, -2.8, 0)), False)
sketch13.addGeometry(Part.LineSegment(App.Vector(-6.2, -2.8, 0), App.Vector(-9.2, -4.5, 0)), False)
sketch13.addGeometry(Part.LineSegment(App.Vector(-9.2, -4.5, 0), App.Vector(-9.2, -8, 0)), False)
sketch13.addGeometry(Part.LineSegment(App.Vector(-9.2, -8, 0), App.Vector(-6.2, -9.7, 0)), False)
sketch13.addGeometry(Part.LineSegment(App.Vector(-30.8, -4.5, 0), App.Vector(-33.8, -2.8, 0)), False)
sketch13.addGeometry(Part.LineSegment(App.Vector(-33.8, -2.8, 0), App.Vector(-36.8, -4.5, 0)), False)
sketch13.addGeometry(Part.LineSegment(App.Vector(-36.8, -4.5, 0), App.Vector(-36.8, -8, 0)), False)
sketch13.addGeometry(Part.LineSegment(App.Vector(-36.8, -8, 0), App.Vector(-33.8, -9.7, 0)), False)
sketch13.addGeometry(Part.LineSegment(App.Vector(-33.8, -9.7, 0), App.Vector(-30.8, -8, 0)), False)
sketch13.addGeometry(Part.LineSegment(App.Vector(-30.8, -8, 0), App.Vector(-30.8, -4.5, 0)), False)
sketch13.addConstraint(Sketcher.Constraint("Coincident", 0, 2, 1, 1))
sketch13.addConstraint(Sketcher.Constraint("Coincident", 1, 2, 2, 1))
sketch13.addConstraint(Sketcher.Constraint("Coincident", 2, 2, 3, 1))
sketch13.addConstraint(Sketcher.Constraint("Coincident", 3, 2, 4, 1))
sketch13.addConstraint(Sketcher.Constraint("Coincident", 4, 2, 5, 1))
sketch13.addConstraint(Sketcher.Constraint("Coincident", 5, 2, 0, 1))
sketch13.addConstraint(Sketcher.Constraint("Coincident", 6, 2, 7, 1))
sketch13.addConstraint(Sketcher.Constraint("Coincident", 7, 2, 8, 1))
sketch13.addConstraint(Sketcher.Constraint("Coincident", 8, 2, 9, 1))
sketch13.addConstraint(Sketcher.Constraint("Coincident", 9, 2, 10, 1))
sketch13.addConstraint(Sketcher.Constraint("Coincident", 10, 2, 11, 1))
sketch13.addConstraint(Sketcher.Constraint("Coincident", 11, 2, 6, 1))
sketch13.addConstraint(Sketcher.Constraint("Vertical", 1))
sketch13.addConstraint(Sketcher.Constraint("Vertical", 4))
sketch13.addConstraint(Sketcher.Constraint("Vertical", 8))
sketch13.addConstraint(Sketcher.Constraint("Vertical", 11))
sketch13.addConstraint(Sketcher.Constraint("Parallel", 0, 3))
sketch13.addConstraint(Sketcher.Constraint("Parallel", 2, 5))
sketch13.addConstraint(Sketcher.Constraint("Parallel", 5, 6))
sketch13.addConstraint(Sketcher.Constraint("Parallel", 3, 7))
sketch13.addConstraint(Sketcher.Constraint("Parallel", 6, 9))
sketch13.addConstraint(Sketcher.Constraint("Parallel", 7, 10))
sketch13.addConstraint(Sketcher.Constraint("Horizontal", 1, 2, 3, 2))
sketch13.addConstraint(Sketcher.Constraint("Horizontal", 0, 2, 4, 2))
sketch13.addConstraint(Sketcher.Constraint("Horizontal", 2, 2, 6, 2))
sketch13.addConstraint(Sketcher.Constraint("Horizontal", 3, 2, 7, 2))
sketch13.addConstraint(Sketcher.Constraint("Horizontal", 4, 2, 8, 2))
sketch13.addConstraint(Sketcher.Constraint("Horizontal", 5, 2, 9, 2))
sketch13.addConstraint(Sketcher.Constraint("Horizontal", 8, 2, 10, 2))
sketch13.addConstraint(Sketcher.Constraint("Vertical", 2, 2, 5, 2))
sketch13.addConstraint(Sketcher.Constraint("Angle", 0, Q("30 deg")))
sketch13.addConstraint(Sketcher.Constraint("DistanceX", 2, 2, 1, 2, Q("3 mm")))
sketch13.addConstraint(Sketcher.Constraint("DistanceX", 6, 2, 3, 2, Q("24.5 mm")))
sketch13.addConstraint(Sketcher.Constraint("DistanceX", 0, 2, -1, 1, Q("3.25 mm")))
sketch13.addConstraint(Sketcher.Constraint("DistanceY", 1, 1, 1, 2, Q("3.464102 mm")))
sketch13.addConstraint(Sketcher.Constraint("DistanceY", 2, 2, -1, 1, Q("2.785898 mm")))
pocket10 = body.newObject("PartDesign::Pocket", "Pocket009")
pocket10.Profile = sketch13
pocket10.Length = 12

doc.recompute()
